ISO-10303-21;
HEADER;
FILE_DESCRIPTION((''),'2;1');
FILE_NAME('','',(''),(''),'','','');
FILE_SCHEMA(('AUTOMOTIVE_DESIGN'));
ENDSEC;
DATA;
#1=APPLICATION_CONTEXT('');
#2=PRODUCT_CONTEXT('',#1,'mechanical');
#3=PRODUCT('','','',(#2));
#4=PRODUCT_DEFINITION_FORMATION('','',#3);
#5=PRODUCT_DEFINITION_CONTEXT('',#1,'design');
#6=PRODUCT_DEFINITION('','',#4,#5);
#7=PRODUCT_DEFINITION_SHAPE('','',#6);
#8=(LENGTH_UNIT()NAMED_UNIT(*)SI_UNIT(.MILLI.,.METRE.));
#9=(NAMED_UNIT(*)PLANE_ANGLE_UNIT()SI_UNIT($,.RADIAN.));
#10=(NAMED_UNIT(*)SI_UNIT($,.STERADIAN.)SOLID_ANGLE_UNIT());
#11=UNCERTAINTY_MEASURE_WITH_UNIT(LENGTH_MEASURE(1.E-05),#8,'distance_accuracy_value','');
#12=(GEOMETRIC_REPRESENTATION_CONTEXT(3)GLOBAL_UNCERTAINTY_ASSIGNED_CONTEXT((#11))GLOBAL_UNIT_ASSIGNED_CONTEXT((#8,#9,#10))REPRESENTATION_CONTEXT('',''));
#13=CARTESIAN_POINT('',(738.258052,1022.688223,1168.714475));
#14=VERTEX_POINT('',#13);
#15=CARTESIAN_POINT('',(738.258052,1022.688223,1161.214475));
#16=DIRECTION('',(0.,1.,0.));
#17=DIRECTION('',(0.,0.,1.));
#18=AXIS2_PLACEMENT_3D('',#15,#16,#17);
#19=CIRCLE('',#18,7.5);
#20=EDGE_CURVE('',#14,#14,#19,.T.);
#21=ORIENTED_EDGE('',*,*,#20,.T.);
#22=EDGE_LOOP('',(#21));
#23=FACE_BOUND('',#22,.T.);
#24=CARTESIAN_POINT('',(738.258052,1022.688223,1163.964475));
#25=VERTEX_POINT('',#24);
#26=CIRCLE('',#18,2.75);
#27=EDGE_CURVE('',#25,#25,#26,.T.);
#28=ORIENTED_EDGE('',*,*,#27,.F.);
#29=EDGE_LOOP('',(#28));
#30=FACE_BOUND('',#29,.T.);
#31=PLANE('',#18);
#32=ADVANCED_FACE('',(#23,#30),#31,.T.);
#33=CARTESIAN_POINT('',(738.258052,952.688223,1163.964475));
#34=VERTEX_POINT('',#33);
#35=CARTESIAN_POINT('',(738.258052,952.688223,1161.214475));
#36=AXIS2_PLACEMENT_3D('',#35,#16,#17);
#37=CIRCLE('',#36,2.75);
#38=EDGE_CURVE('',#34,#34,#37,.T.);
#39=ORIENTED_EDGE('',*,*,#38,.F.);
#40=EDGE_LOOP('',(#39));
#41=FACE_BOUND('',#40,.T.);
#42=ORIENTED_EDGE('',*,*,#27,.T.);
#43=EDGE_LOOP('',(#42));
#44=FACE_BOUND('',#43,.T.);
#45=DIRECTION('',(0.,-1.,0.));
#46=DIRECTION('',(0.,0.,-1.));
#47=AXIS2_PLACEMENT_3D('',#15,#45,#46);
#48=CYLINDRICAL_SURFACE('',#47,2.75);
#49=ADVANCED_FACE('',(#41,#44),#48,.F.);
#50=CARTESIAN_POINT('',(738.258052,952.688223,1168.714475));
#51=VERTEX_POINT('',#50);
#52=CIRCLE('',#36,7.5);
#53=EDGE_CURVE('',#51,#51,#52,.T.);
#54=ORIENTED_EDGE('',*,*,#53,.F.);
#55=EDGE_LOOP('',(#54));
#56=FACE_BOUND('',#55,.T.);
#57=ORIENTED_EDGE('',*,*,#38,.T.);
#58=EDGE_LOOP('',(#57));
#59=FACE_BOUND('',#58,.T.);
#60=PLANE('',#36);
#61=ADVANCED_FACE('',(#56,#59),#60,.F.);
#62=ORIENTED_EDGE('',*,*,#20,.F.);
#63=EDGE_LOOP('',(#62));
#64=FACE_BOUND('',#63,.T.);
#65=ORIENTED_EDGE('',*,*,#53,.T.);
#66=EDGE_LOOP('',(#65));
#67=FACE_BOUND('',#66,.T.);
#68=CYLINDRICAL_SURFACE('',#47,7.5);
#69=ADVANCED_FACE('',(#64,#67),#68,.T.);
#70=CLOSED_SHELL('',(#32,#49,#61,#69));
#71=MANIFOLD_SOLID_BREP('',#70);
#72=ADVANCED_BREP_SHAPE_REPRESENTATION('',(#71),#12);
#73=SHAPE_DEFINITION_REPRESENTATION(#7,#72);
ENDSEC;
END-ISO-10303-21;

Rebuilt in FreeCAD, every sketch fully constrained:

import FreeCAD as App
import Part
import Sketcher
from FreeCAD import Vector
Q = App.Units.Quantity

doc = App.newDocument("Part")
params = doc.addObject("Spreadsheet::Sheet", "Params")
for row, (alias, value) in enumerate([
    ("sketch1_diameter", "15 mm"),
    ("sketch1_diameter2", "5.5 mm"),
    ("pad1_length", "70 mm"),
], start=1):
    params.set(f"A{row}", alias)
    params.set(f"B{row}", "=" + value)
    params.setAlias(f"B{row}", alias)

body = doc.addObject("PartDesign::Body", "Body")

sketch1 = body.newObject("Sketcher::SketchObject", "Sketch")
sketch1.AttachmentSupport = (doc.getObject("XZ_Plane"), [""])
sketch1.MapMode = "FlatFace"
sketch1.AttachmentOffset = App.Placement(Vector(0, 0, -952.688223), App.Rotation())
sketch1.addGeometry([
    Part.Circle(Vector(738.258052, 1161.214475, 0), Vector(0, 0, 1), 7.5),
    Part.Circle(Vector(738.258052, 1161.214475, 0), Vector(0, 0, 1), 2.75),
], False)
sketch1.addConstraint([
    Sketcher.Constraint("Coincident", 1, 3, 0, 3),
    Sketcher.Constraint("Diameter", 0, Q("15 mm")),
    Sketcher.Constraint("Diameter", 1, Q("5.5 mm")),
    Sketcher.Constraint("DistanceX", -1, 1, 0, 3, Q("738.258052 mm")),
    Sketcher.Constraint("DistanceY", -1, 1, 0, 3, Q("1161.214475 mm")),
])
sketch1.setExpression("Constraints[1]", "Params.sketch1_diameter")
sketch1.setExpression("Constraints[2]", "Params.sketch1_diameter2")
pad1 = body.newObject("PartDesign::Pad", "Pad")
pad1.Profile = sketch1
pad1.setExpression("Length", "Params.pad1_length")
pad1.Reversed = True

doc.recompute()
